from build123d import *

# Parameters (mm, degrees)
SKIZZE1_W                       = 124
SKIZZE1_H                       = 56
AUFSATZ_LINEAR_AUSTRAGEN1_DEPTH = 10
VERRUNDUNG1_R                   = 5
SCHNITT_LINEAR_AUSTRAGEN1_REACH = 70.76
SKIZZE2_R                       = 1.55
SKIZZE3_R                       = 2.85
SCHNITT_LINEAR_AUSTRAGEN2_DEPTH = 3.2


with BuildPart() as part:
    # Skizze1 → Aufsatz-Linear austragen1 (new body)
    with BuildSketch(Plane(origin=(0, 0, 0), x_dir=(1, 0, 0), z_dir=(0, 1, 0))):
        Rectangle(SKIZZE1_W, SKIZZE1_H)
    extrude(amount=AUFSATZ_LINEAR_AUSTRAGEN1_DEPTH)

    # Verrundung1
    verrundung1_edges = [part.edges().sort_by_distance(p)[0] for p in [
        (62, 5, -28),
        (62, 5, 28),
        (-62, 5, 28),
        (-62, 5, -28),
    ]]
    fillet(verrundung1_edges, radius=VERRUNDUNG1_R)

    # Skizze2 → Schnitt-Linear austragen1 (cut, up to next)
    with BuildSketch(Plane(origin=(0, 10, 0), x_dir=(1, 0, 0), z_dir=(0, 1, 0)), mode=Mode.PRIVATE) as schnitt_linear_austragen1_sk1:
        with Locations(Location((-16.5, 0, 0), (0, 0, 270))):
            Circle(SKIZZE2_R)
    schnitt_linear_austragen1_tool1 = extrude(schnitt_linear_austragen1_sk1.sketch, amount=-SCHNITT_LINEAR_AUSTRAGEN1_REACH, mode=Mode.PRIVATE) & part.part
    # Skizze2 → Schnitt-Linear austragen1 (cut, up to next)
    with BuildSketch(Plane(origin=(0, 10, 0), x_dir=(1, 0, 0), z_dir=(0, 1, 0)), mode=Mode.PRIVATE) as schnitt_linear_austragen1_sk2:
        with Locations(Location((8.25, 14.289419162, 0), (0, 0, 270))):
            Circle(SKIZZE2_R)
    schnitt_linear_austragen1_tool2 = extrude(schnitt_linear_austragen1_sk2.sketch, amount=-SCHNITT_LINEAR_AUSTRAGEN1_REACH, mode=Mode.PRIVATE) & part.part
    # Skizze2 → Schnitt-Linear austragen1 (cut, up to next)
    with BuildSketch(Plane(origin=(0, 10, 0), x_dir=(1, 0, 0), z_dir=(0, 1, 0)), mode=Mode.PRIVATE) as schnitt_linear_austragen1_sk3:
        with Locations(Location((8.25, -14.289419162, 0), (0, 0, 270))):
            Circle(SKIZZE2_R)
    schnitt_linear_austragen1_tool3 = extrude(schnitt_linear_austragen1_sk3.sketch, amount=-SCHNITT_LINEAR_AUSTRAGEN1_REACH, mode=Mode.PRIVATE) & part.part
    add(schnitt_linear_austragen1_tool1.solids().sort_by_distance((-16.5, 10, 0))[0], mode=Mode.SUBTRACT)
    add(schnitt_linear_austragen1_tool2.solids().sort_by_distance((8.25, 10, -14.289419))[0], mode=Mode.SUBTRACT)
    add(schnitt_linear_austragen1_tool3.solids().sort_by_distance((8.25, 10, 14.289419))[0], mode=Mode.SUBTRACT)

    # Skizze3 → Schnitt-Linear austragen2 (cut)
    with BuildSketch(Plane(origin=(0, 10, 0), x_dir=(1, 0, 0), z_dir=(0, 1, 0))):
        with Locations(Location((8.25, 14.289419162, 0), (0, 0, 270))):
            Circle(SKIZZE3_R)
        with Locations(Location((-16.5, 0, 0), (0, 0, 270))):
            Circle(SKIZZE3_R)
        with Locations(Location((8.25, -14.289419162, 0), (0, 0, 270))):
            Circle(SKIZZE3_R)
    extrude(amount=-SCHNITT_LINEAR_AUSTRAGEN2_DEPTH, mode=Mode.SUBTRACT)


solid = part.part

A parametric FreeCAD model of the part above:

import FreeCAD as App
import Part
import Sketcher
Q = App.Units.Quantity


def edges_at(feature, points):
    """Names of the edges that pass closest to the given points."""
    edges = feature.Shape.Edges
    near = lambda p: min(range(len(edges)), key=lambda i: edges[i].distToShape(Part.Vertex(*p))[0])
    return sorted({f"Edge{near(p) + 1}" for p in points})


def add_polygon(sketch, points):
    """Adds a closed chain of lines whose ends are joined by coincident constraints."""
    first, n = sketch.GeometryCount, len(points)
    for a, b in zip(points, points[1:] + points[:1]):
        sketch.addGeometry(Part.LineSegment(App.Vector(*a, 0), App.Vector(*b, 0)), False)
    for i in range(n):
        sketch.addConstraint(Sketcher.Constraint("Coincident", first + i, 2, first + (i + 1) % n, 1))

doc = App.newDocument("Part")
body = doc.addObject("PartDesign::Body", "Body")

# Sketch on XZ plane
sketch1 = doc.addObject("Sketcher::SketchObject", "Sketch")
body.addObject(sketch1)
sketch1.AttachmentSupport = (doc.XZ_Plane, [""])
sketch1.MapMode = "FlatFace"
add_polygon(sketch1, [(-62, -28), (-62, 28), (62, 28), (62, -28)])  # lines 0-3
sketch1.addConstraint([
    Sketcher.Constraint("Vertical", 0),
    Sketcher.Constraint("Horizontal", 1),
    Sketcher.Constraint("Vertical", 2),
    Sketcher.Constraint("Horizontal", 3),
    Sketcher.Constraint("Symmetric", 0, 2, 2, 2, -1, 1),
    Sketcher.Constraint("DistanceX", 1, 1, 1, 2, Q("124 mm")),
    Sketcher.Constraint("DistanceY", 0, 1, 0, 2, Q("56 mm")),
])
pad1 = doc.addObject("PartDesign::Pad", "Pad")
body.addObject(pad1)
pad1.Profile = sketch1
pad1.Length = 10
pad1.Reversed = True
doc.recompute()

fillet = doc.addObject("PartDesign::Fillet", "Fillet")
body.addObject(fillet)
fillet.Base = (pad1, edges_at(pad1, [
    (62, 5, -28),
    (62, 5, 28),
    (-62, 5, 28),
    (-62, 5, -28),
]))
fillet.Radius = 5

# Sketch on XZ plane
sketch2 = doc.addObject("Sketcher::SketchObject", "Sketch001")
body.addObject(sketch2)
sketch2.AttachmentSupport = (doc.XZ_Plane, [""])
sketch2.MapMode = "FlatFace"
sketch2.AttachmentOffset = App.Placement(App.Vector(0, 0, -10), App.Rotation())
sketch2.addGeometry(Part.Circle(App.Vector(-16.5, 0, 0), App.Vector(0, 0, 1), 1.6), False)
sketch2.addConstraint([
    Sketcher.Constraint("PointOnObject", 0, 3, -1),
    Sketcher.Constraint("Diameter", 0, Q("3.1 mm")),
    Sketcher.Constraint("DistanceX", 0, 3, -1, 1, Q("16.5 mm")),
])
pocket1 = doc.addObject("PartDesign::Pocket", "Pocket")
body.addObject(pocket1)
pocket1.Profile = sketch2
pocket1.Type = "UpToFirst"
pocket1.Reversed = True

# Sketch on XZ plane
sketch3 = doc.addObject("Sketcher::SketchObject", "Sketch002")
body.addObject(sketch3)
sketch3.AttachmentSupport = (doc.XZ_Plane, [""])
sketch3.MapMode = "FlatFace"
sketch3.AttachmentOffset = App.Placement(App.Vector(0, 0, -10), App.Rotation())
sketch3.addGeometry(Part.Circle(App.Vector(8.2, -14.3, 0), App.Vector(0, 0, 1), 1.6), False)
sketch3.addConstraint([
    Sketcher.Constraint("Diameter", 0, Q("3.1 mm")),
    Sketcher.Constraint("DistanceX", -1, 1, 0, 3, Q("8.25 mm")),
    Sketcher.Constraint("DistanceY", 0, 3, -1, 1, Q("14.289419 mm")),
])
pocket2 = doc.addObject("PartDesign::Pocket", "Pocket001")
body.addObject(pocket2)
pocket2.Profile = sketch3
pocket2.Type = "UpToFirst"
pocket2.Reversed = True

# Sketch on XZ plane
sketch4 = doc.addObject("Sketcher::SketchObject", "Sketch003")
body.addObject(sketch4)
sketch4.AttachmentSupport = (doc.XZ_Plane, [""])
sketch4.MapMode = "FlatFace"
sketch4.AttachmentOffset = App.Placement(App.Vector(0, 0, -10), App.Rotation())
sketch4.addGeometry(Part.Circle(App.Vector(8.2, 14.3, 0), App.Vector(0, 0, 1), 1.6), False)
sketch4.addConstraint([
    Sketcher.Constraint("Diameter", 0, Q("3.1 mm")),
    Sketcher.Constraint("DistanceX", -1, 1, 0, 3, Q("8.25 mm")),
    Sketcher.Constraint("DistanceY", -1, 1, 0, 3, Q("14.289419 mm")),
])
pocket3 = doc.addObject("PartDesign::Pocket", "Pocket002")
body.addObject(pocket3)
pocket3.Profile = sketch4
pocket3.Type = "UpToFirst"
pocket3.Reversed = True

# Sketch on XZ plane
sketch5 = doc.addObject("Sketcher::SketchObject", "Sketch004")
body.addObject(sketch5)
sketch5.AttachmentSupport = (doc.XZ_Plane, [""])
sketch5.MapMode = "FlatFace"
sketch5.AttachmentOffset = App.Placement(App.Vector(0, 0, -10), App.Rotation())
sketch5.addGeometry([
    Part.Circle(App.Vector(8.2, -14.3, 0), App.Vector(0, 0, 1), 2.9),
    Part.Circle(App.Vector(-16.5, 0, 0), App.Vector(0, 0, 1), 2.9),
    Part.Circle(App.Vector(8.2, 14.3, 0), App.Vector(0, 0, 1), 2.9),
], False)
sketch5.addConstraint([
    Sketcher.Constraint("Equal", 0, 1),
    Sketcher.Constraint("Equal", 1, 2),
    Sketcher.Constraint("Symmetric", 0, 3, 2, 3, -1),
    Sketcher.Constraint("PointOnObject", 1, 3, -1),
    Sketcher.Constraint("Diameter", 0, Q("5.7 mm")),
    Sketcher.Constraint("DistanceX", 1, 3, -1, 1, Q("16.5 mm")),
    Sketcher.Constraint("DistanceX", -1, 1, 0, 3, Q("8.25 mm")),
    Sketcher.Constraint("DistanceY", 0, 3, -1, 1, Q("14.289419 mm")),
])
pocket4 = doc.addObject("PartDesign::Pocket", "Pocket003")
body.addObject(pocket4)
pocket4.Profile = sketch5
pocket4.Length = 3.2
pocket4.Reversed = True

doc.recompute()
